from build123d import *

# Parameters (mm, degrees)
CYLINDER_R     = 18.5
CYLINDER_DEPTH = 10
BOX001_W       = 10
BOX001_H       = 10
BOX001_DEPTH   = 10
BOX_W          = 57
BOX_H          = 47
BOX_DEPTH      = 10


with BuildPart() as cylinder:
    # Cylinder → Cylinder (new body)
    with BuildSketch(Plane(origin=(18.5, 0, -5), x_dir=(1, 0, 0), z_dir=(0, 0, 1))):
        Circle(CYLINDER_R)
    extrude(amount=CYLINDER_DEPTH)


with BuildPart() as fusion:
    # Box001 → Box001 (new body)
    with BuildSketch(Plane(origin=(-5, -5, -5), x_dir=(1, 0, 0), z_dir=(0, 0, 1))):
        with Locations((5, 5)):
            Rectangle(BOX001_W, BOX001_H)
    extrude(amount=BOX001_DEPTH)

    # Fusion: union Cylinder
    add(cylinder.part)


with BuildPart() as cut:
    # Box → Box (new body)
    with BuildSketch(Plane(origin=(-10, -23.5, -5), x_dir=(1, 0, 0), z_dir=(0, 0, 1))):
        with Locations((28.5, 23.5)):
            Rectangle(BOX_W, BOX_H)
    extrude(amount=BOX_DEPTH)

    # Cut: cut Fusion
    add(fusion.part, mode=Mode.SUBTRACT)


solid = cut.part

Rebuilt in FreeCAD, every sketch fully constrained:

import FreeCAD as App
import Part
import Sketcher

V = App.Vector
Q = App.Units.Quantity

doc = App.newDocument("Part")
params = doc.addObject("Spreadsheet::Sheet", "Params")
for row, (alias, value) in enumerate([
    ("sketch1_diameter", "37 mm"),
    ("pad1_length", "10 mm"),
    ("sketch2_width", "10 mm"),
    ("pad2_length", "10 mm"),
    ("sketch3_width", "57 mm"),
    ("sketch3_height", "47 mm"),
    ("pad3_length", "10 mm"),
], start=1):
    params.set(f"A{row}", alias)
    params.set(f"B{row}", "=" + value)
    params.setAlias(f"B{row}", alias)

body = doc.addObject("PartDesign::Body", "Body")

# Sketch on XY plane
sketch1 = doc.addObject("Sketcher::SketchObject", "Sketch")
body.addObject(sketch1)
sketch1.AttachmentSupport = (doc.XY_Plane, [""])
sketch1.MapMode = "FlatFace"
sketch1.AttachmentOffset = App.Placement(V(0, 0, -5), App.Rotation())
sketch1.addGeometry(Part.Circle(V(18.5, 0, 0), V(0, 0, 1), 18.5), False)
sketch1.addConstraint([
    Sketcher.Constraint("PointOnObject", 0, 3, -1),
    Sketcher.Constraint("Diameter", 0, Q("37 mm")),
    Sketcher.Constraint("DistanceX", -1, 1, 0, 3, Q("18.5 mm")),
])
sketch1.setExpression("Constraints[1]", "Params.sketch1_diameter")
pad1 = doc.addObject("PartDesign::Pad", "Pad")
body.addObject(pad1)
pad1.Profile = sketch1
pad1.setExpression("Length", "Params.pad1_length")
body2 = doc.addObject("PartDesign::Body", "Body001")

# Sketch on XY plane
sketch2 = doc.addObject("Sketcher::SketchObject", "Sketch001")
body2.addObject(sketch2)
sketch2.AttachmentSupport = (doc.getObject("XY_Plane001"), [""])
sketch2.MapMode = "FlatFace"
sketch2.AttachmentOffset = App.Placement(V(0, 0, -5), App.Rotation())
sketch2.addGeometry([
    Part.LineSegment(V(-5, 5, 0), V(-5, -5, 0)),
    Part.LineSegment(V(-5, -5, 0), V(5, -5, 0)),
    Part.LineSegment(V(5, -5, 0), V(5, 5, 0)),
    Part.LineSegment(V(5, 5, 0), V(-5, 5, 0)),
], False)
sketch2.addConstraint([
    Sketcher.Constraint("Coincident", 0, 2, 1, 1),
    Sketcher.Constraint("Coincident", 1, 2, 2, 1),
    Sketcher.Constraint("Coincident", 2, 2, 3, 1),
    Sketcher.Constraint("Coincident", 3, 2, 0, 1),
    Sketcher.Constraint("Vertical", 0),
    Sketcher.Constraint("Horizontal", 1),
    Sketcher.Constraint("Vertical", 2),
    Sketcher.Constraint("Horizontal", 3),
    Sketcher.Constraint("Symmetric", 0, 2, 2, 2, -1, 1),
    Sketcher.Constraint("Equal", 3, 0),
    Sketcher.Constraint("DistanceX", 1, 1, 1, 2, Q("10 mm")),
])
sketch2.setExpression("Constraints[10]", "Params.sketch2_width")
pad2 = doc.addObject("PartDesign::Pad", "Pad001")
body2.addObject(pad2)
pad2.Profile = sketch2
pad2.setExpression("Length", "Params.pad2_length")
doc.recompute()

boolean = doc.addObject("PartDesign::Boolean", "Boolean")
body2.addObject(boolean)
boolean.Type = "Fuse"
boolean.addObjects([body])
body3 = doc.addObject("PartDesign::Body", "Body002")

# Sketch on XY plane
sketch3 = doc.addObject("Sketcher::SketchObject", "Sketch002")
body3.addObject(sketch3)
sketch3.AttachmentSupport = (doc.getObject("XY_Plane002"), [""])
sketch3.MapMode = "FlatFace"
sketch3.AttachmentOffset = App.Placement(V(0, 0, -5), App.Rotation())
sketch3.addGeometry([
    Part.LineSegment(V(-10, 23.5, 0), V(-10, -23.5, 0)),
    Part.LineSegment(V(-10, -23.5, 0), V(47, -23.5, 0)),
    Part.LineSegment(V(47, -23.5, 0), V(47, 23.5, 0)),
    Part.LineSegment(V(47, 23.5, 0), V(-10, 23.5, 0)),
], False)
sketch3.addConstraint([
    Sketcher.Constraint("Coincident", 0, 2, 1, 1),
    Sketcher.Constraint("Coincident", 1, 2, 2, 1),
    Sketcher.Constraint("Coincident", 2, 2, 3, 1),
    Sketcher.Constraint("Coincident", 3, 2, 0, 1),
    Sketcher.Constraint("Vertical", 0),
    Sketcher.Constraint("Horizontal", 1),
    Sketcher.Constraint("Vertical", 2),
    Sketcher.Constraint("Horizontal", 3),
    Sketcher.Constraint("DistanceX", 1, 1, 1, 2, Q("57 mm")),
    Sketcher.Constraint("DistanceY", 0, 2, 0, 1, Q("47 mm")),
    Sketcher.Constraint("DistanceX", 0, 2, -1, 1, Q("10 mm")),
    Sketcher.Constraint("DistanceY", 0, 2, -1, 1, Q("23.5 mm")),
])
sketch3.setExpression("Constraints[8]", "Params.sketch3_width")
sketch3.setExpression("Constraints[9]", "Params.sketch3_height")
pad3 = doc.addObject("PartDesign::Pad", "Pad002")
body3.addObject(pad3)
pad3.Profile = sketch3
pad3.setExpression("Length", "Params.pad3_length")
doc.recompute()

boolean2 = doc.addObject("PartDesign::Boolean", "Boolean001")
body3.addObject(boolean2)
boolean2.Type = "Cut"
boolean2.addObjects([body2])

doc.recompute()
